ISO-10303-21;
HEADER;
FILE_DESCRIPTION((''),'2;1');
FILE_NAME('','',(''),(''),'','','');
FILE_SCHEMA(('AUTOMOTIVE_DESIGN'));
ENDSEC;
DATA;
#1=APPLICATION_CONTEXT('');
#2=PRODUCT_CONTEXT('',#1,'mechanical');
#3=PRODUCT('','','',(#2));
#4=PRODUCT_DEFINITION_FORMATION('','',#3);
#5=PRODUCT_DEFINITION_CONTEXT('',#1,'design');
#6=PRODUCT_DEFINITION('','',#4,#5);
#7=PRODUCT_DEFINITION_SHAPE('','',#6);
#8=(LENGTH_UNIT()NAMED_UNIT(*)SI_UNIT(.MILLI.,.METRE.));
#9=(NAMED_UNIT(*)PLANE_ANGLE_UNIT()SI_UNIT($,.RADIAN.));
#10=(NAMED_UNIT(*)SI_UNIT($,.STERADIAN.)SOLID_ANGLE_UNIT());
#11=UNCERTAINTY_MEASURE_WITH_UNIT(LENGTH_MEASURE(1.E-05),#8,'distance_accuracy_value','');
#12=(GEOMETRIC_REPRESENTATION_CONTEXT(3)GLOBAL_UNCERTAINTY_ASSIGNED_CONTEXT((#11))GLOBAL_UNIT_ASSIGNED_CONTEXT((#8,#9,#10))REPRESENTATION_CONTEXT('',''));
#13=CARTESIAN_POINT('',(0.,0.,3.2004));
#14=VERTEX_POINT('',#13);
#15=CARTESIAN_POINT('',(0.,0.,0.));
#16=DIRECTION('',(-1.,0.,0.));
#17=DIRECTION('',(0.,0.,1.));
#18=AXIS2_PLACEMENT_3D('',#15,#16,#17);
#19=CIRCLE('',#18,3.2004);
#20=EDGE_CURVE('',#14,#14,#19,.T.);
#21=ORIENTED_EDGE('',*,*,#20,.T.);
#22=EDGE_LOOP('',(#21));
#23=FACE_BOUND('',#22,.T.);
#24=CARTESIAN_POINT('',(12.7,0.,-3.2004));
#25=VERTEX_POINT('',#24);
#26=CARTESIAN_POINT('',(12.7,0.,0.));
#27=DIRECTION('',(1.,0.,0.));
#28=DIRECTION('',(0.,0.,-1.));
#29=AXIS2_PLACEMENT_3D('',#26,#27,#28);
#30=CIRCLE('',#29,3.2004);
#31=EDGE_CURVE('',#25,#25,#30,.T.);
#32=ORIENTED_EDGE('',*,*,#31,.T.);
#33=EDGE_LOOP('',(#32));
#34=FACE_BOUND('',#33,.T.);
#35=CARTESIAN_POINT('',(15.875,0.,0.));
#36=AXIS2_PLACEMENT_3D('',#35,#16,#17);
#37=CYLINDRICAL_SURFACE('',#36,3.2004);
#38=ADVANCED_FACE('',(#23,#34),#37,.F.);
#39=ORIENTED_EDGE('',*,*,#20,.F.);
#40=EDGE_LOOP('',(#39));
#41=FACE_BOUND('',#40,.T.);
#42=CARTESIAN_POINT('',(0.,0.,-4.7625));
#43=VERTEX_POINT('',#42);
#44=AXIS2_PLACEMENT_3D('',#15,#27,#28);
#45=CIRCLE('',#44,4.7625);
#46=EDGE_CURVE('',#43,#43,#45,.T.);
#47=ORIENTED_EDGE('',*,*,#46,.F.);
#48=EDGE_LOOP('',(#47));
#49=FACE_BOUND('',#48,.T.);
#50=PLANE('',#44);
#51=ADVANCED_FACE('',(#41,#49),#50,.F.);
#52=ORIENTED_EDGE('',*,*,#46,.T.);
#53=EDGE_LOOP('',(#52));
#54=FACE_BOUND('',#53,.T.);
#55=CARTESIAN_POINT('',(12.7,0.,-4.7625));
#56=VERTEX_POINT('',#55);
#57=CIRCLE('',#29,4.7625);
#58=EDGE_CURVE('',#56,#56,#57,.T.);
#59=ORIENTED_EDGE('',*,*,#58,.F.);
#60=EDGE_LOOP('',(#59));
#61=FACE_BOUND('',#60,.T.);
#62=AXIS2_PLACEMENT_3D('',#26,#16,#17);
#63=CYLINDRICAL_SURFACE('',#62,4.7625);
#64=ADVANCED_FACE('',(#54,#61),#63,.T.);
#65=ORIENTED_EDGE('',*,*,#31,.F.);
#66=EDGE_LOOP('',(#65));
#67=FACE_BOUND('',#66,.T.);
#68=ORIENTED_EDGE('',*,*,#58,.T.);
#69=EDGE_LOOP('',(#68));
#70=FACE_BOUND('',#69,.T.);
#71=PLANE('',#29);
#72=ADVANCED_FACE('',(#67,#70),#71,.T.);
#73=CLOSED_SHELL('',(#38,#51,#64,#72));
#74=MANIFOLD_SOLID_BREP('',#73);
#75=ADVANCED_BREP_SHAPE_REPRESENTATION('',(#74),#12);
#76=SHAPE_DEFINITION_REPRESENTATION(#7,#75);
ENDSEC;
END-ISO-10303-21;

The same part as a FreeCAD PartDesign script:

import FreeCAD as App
import Part
import Sketcher

V = App.Vector
Q = App.Units.Quantity

doc = App.newDocument("Part")
params = doc.addObject("Spreadsheet::Sheet", "Params")
for row, (alias, value) in enumerate([
    ("sketch1_diameter", "0.375 in"),
    ("pad1_length", "0.5 in"),
    ("sketch2_diameter", "0.252 in"),
    ("pocket1_length", "0.625 in"),
], start=1):
    params.set(f"A{row}", alias)
    params.set(f"B{row}", "=" + value)
    params.setAlias(f"B{row}", alias)

body = doc.addObject("PartDesign::Body", "Body")

# Sketch on YZ plane
sketch1 = body.newObject("Sketcher::SketchObject", "Sketch")
sketch1.AttachmentSupport = (doc.getObject("YZ_Plane"), [""])
sketch1.MapMode = "FlatFace"
sketch1.addGeometry(Part.Circle(V(0, 0, 0), V(0, 0, 1), 4.7625), False)
sketch1.addConstraint(Sketcher.Constraint("Coincident", 0, 3, -1, 1))
sketch1.addConstraint(Sketcher.Constraint("Diameter", 0, Q("0.375 in")))
sketch1.setExpression("Constraints[1]", "Params.sketch1_diameter")
pad1 = body.newObject("PartDesign::Pad", "Pad")
pad1.Profile = sketch1
pad1.setExpression("Length", "Params.pad1_length")

# Sketch on YZ plane
sketch2 = body.newObject("Sketcher::SketchObject", "Sketch001")
sketch2.AttachmentSupport = (doc.getObject("YZ_Plane"), [""])
sketch2.MapMode = "FlatFace"
sketch2.addGeometry(Part.Circle(V(0, 0, 0), V(0, 0, 1), 3.2004), False)
sketch2.addConstraint(Sketcher.Constraint("Coincident", 0, 3, -1, 1))
sketch2.addConstraint(Sketcher.Constraint("Diameter", 0, Q("0.252 in")))
sketch2.setExpression("Constraints[1]", "Params.sketch2_diameter")
pocket1 = body.newObject("PartDesign::Pocket", "Pocket")
pocket1.Profile = sketch2
pocket1.setExpression("Length", "Params.pocket1_length")
pocket1.Reversed = True

doc.recompute()
